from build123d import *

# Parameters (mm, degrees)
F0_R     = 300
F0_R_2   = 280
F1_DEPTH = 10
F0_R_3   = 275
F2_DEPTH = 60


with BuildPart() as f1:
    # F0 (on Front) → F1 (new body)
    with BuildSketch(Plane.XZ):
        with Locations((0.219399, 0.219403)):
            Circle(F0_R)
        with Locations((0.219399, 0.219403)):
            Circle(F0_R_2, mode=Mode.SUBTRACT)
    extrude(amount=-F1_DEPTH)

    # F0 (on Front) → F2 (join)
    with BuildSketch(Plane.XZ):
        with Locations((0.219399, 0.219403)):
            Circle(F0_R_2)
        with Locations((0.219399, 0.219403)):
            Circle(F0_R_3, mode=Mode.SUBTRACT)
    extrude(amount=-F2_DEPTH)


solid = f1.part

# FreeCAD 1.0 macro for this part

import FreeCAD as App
import Part
import Sketcher
Q = App.Units.Quantity

doc = App.newDocument("Part")
body = doc.addObject("PartDesign::Body", "Body")

# Sketch on XZ plane
sketch1 = doc.addObject("Sketcher::SketchObject", "Sketch")
body.addObject(sketch1)
sketch1.AttachmentSupport = (doc.XZ_Plane, [""])
sketch1.MapMode = "FlatFace"
sketch1.addGeometry([
    Part.Circle(App.Vector(0.219399, 0.219403, 0), App.Vector(0, 0, 1), 300),
    Part.Circle(App.Vector(0.219399, 0.219403, 0), App.Vector(0, 0, 1), 280),
], False)
sketch1.addConstraint([
    Sketcher.Constraint("Coincident", 1, 3, 0, 3),
    Sketcher.Constraint("Diameter", 0, Q("600 mm")),
    Sketcher.Constraint("Diameter", 1, Q("560 mm")),
    Sketcher.Constraint("DistanceX", -1, 1, 0, 3, Q("0.219399 mm")),
    Sketcher.Constraint("DistanceY", -1, 1, 0, 3, Q("0.219403 mm")),
])
pad1 = doc.addObject("PartDesign::Pad", "Pad")
body.addObject(pad1)
pad1.Profile = sketch1
pad1.Length = 10
pad1.Reversed = True

# Sketch on XZ plane
sketch2 = doc.addObject("Sketcher::SketchObject", "Sketch001")
body.addObject(sketch2)
sketch2.AttachmentSupport = (doc.XZ_Plane, [""])
sketch2.MapMode = "FlatFace"
sketch2.addGeometry([
    Part.Circle(App.Vector(0.219399, 0.219403, 0), App.Vector(0, 0, 1), 280),
    Part.Circle(App.Vector(0.219399, 0.219403, 0), App.Vector(0, 0, 1), 275),
], False)
sketch2.addConstraint([
    Sketcher.Constraint("Coincident", 1, 3, 0, 3),
    Sketcher.Constraint("Diameter", 0, Q("560 mm")),
    Sketcher.Constraint("Diameter", 1, Q("550 mm")),
    Sketcher.Constraint("DistanceX", -1, 1, 0, 3, Q("0.219399 mm")),
    Sketcher.Constraint("DistanceY", -1, 1, 0, 3, Q("0.219403 mm")),
])
pad2 = doc.addObject("PartDesign::Pad", "Pad001")
body.addObject(pad2)
pad2.Profile = sketch2
pad2.Length = 60
pad2.Reversed = True

doc.recompute()
